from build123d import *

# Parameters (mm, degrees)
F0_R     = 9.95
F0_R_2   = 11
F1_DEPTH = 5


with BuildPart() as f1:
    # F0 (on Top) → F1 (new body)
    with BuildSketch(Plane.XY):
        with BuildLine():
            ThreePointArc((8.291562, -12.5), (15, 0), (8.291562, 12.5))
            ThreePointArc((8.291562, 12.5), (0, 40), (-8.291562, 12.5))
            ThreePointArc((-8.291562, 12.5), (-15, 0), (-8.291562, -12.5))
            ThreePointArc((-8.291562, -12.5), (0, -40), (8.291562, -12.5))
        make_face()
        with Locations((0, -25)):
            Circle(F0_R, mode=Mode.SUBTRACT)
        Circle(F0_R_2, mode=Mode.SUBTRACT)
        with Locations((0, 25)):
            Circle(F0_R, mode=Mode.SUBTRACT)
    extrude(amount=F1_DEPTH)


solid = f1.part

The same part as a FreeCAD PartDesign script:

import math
import FreeCAD as App
import Part
import Sketcher
from FreeCAD import Vector
Q = App.Units.Quantity

doc = App.newDocument("Part")
body = doc.addObject("PartDesign::Body", "Body")

# Sketch on XY plane
sketch1 = body.newObject("Sketcher::SketchObject", "Sketch")
sketch1.AttachmentSupport = (doc.getObject("XY_Plane"), [""])
sketch1.MapMode = "FlatFace"
sketch1.addGeometry(Part.ArcOfCircle(Part.Circle(Vector(0, 0, 0), Vector(0, 0, 1), 15), math.radians(-56), math.radians(56)), False)
sketch1.addGeometry(Part.ArcOfCircle(Part.Circle(Vector(0, 25, 0), Vector(0, 0, 1), 15), math.radians(-56), math.radians(236)), False)
sketch1.addGeometry(Part.ArcOfCircle(Part.Circle(Vector(0, 0, 0), Vector(0, 0, 1), 15), math.radians(124), math.radians(236)), False)
sketch1.addGeometry(Part.ArcOfCircle(Part.Circle(Vector(0, -25, 0), Vector(0, 0, 1), 15), math.radians(124), math.radians(416)), False)
sketch1.addGeometry(Part.Circle(Vector(0, -25, 0), Vector(0, 0, 1), 10), False)
sketch1.addGeometry(Part.Circle(Vector(0, 0, 0), Vector(0, 0, 1), 11), False)
sketch1.addGeometry(Part.Circle(Vector(0, 25, 0), Vector(0, 0, 1), 10), False)
sketch1.addConstraint(Sketcher.Constraint("Coincident", 0, 2, 1, 1))
sketch1.addConstraint(Sketcher.Constraint("Coincident", 1, 2, 2, 1))
sketch1.addConstraint(Sketcher.Constraint("Coincident", 2, 2, 3, 1))
sketch1.addConstraint(Sketcher.Constraint("Coincident", 3, 2, 0, 1))
sketch1.addConstraint(Sketcher.Constraint("Coincident", 0, 3, -1, 1))
sketch1.addConstraint(Sketcher.Constraint("Coincident", 2, 3, -1, 1))
sketch1.addConstraint(Sketcher.Constraint("Coincident", 5, 3, -1, 1))
sketch1.addConstraint(Sketcher.Constraint("Coincident", 4, 3, 3, 3))
sketch1.addConstraint(Sketcher.Constraint("Coincident", 6, 3, 1, 3))
sketch1.addConstraint(Sketcher.Constraint("Equal", 0, 1))
sketch1.addConstraint(Sketcher.Constraint("Equal", 1, 2))
sketch1.addConstraint(Sketcher.Constraint("Equal", 2, 3))
sketch1.addConstraint(Sketcher.Constraint("Equal", 4, 6))
sketch1.addConstraint(Sketcher.Constraint("Symmetric", 1, 3, 3, 3, -1, 1))
sketch1.addConstraint(Sketcher.Constraint("PointOnObject", 1, 3, -2))
sketch1.addConstraint(Sketcher.Constraint("Diameter", 5, Q("22 mm")))
sketch1.addConstraint(Sketcher.Constraint("Radius", 0, Q("15 mm")))
sketch1.addConstraint(Sketcher.Constraint("Diameter", 4, Q("19.9 mm")))
sketch1.addConstraint(Sketcher.Constraint("DistanceY", -1, 1, 1, 3, Q("25 mm")))
pad1 = body.newObject("PartDesign::Pad", "Pad")
pad1.Profile = sketch1
pad1.Length = 5

doc.recompute()
